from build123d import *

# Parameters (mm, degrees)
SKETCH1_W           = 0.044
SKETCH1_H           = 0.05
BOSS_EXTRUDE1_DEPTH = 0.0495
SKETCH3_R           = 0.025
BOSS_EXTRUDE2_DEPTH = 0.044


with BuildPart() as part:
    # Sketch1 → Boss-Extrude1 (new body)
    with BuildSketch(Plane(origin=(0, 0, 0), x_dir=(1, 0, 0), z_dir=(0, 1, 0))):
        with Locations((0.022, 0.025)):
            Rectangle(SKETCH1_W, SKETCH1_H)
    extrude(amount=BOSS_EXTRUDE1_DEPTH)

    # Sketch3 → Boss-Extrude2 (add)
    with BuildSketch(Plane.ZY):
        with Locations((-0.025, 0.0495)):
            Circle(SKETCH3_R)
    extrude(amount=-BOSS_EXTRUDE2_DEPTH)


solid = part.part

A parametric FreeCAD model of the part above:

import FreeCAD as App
import Part
import Sketcher
from FreeCAD import Vector
Q = App.Units.Quantity


def add_polygon(sketch, points):
    """Adds a closed chain of lines whose ends are joined by coincident constraints."""
    first, n = sketch.GeometryCount, len(points)
    for a, b in zip(points, points[1:] + points[:1]):
        sketch.addGeometry(Part.LineSegment(App.Vector(*a, 0), App.Vector(*b, 0)), False)
    for i in range(n):
        sketch.addConstraint(Sketcher.Constraint("Coincident", first + i, 2, first + (i + 1) % n, 1))

doc = App.newDocument("Part")
body = doc.addObject("PartDesign::Body", "Body")

# Sketch on XZ plane
sketch1 = body.newObject("Sketcher::SketchObject", "Sketch")
sketch1.AttachmentSupport = (doc.getObject("XZ_Plane"), [""])
sketch1.MapMode = "FlatFace"
add_polygon(sketch1, [(0, -0.05), (0, 0), (0.044, 0), (0.044, -0.05)])  # lines 0-3
sketch1.addConstraint([
    Sketcher.Constraint("Vertical", 0),
    Sketcher.Constraint("Horizontal", 1),
    Sketcher.Constraint("Vertical", 2),
    Sketcher.Constraint("Horizontal", 3),
    Sketcher.Constraint("Coincident", 0, 2, -1, 1),
    Sketcher.Constraint("DistanceY", 0, 1, 0, 2, Q("0.05 mm")),
    Sketcher.Constraint("DistanceX", 1, 1, 1, 2, Q("0.044 mm")),
])
pad1 = body.newObject("PartDesign::Pad", "Pad")
pad1.Profile = sketch1
pad1.Length = 0.0495
pad1.Reversed = True

# Sketch on YZ plane
sketch2 = body.newObject("Sketcher::SketchObject", "Sketch001")
sketch2.AttachmentSupport = (doc.getObject("YZ_Plane"), [""])
sketch2.MapMode = "FlatFace"
sketch2.addGeometry(Part.Circle(Vector(0.05, -0.025, 0), Vector(0, 0, 1), 0.025), False)
sketch2.addConstraint([
    Sketcher.Constraint("Diameter", 0, Q("0.05 mm")),
    Sketcher.Constraint("DistanceY", 0, 3, -1, 1, Q("0.025 mm")),
    Sketcher.Constraint("DistanceX", -1, 1, 0, 3, Q("0.0495 mm")),
])
pad2 = body.newObject("PartDesign::Pad", "Pad001")
pad2.Profile = sketch2
pad2.Length = 0.044

doc.recompute()
